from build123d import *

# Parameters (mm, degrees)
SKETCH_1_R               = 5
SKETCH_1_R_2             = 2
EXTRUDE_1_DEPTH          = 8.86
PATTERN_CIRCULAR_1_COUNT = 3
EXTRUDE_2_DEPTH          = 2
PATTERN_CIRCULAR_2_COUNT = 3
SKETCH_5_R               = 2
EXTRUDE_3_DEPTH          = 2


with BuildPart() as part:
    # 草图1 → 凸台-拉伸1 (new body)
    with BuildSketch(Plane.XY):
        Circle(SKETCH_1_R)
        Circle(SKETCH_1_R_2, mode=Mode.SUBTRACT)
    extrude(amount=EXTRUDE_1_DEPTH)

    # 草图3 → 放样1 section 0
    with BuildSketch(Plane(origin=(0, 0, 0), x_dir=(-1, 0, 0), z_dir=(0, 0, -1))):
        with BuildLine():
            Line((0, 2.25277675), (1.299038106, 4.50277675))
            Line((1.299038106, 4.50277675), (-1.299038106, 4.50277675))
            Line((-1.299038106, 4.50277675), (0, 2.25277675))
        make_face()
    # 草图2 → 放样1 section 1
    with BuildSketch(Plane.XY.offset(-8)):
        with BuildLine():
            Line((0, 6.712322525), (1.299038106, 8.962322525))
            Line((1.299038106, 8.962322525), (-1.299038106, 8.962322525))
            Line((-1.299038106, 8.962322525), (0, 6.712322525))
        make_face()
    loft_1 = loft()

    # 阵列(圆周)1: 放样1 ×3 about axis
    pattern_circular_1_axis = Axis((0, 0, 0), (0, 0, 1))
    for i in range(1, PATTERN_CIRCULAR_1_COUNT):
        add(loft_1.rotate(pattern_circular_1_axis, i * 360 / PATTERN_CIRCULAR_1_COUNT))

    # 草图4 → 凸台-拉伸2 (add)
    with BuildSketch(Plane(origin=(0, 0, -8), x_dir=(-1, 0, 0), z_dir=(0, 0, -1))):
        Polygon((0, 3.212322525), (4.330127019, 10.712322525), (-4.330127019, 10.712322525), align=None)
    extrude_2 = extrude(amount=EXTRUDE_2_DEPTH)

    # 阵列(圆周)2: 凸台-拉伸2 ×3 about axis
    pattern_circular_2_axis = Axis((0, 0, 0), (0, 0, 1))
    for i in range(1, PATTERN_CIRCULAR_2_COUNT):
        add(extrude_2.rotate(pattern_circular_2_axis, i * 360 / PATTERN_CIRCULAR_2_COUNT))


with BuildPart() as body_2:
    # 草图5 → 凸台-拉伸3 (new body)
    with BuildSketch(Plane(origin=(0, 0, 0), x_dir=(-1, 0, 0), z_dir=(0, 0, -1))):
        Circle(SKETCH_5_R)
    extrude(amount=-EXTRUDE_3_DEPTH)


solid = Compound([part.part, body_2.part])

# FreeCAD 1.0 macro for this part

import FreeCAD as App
import Part
import Sketcher
Q = App.Units.Quantity


def add_polygon(sketch, points):
    """Adds a closed chain of lines whose ends are joined by coincident constraints."""
    first, n = sketch.GeometryCount, len(points)
    for a, b in zip(points, points[1:] + points[:1]):
        sketch.addGeometry(Part.LineSegment(App.Vector(*a, 0), App.Vector(*b, 0)), False)
    for i in range(n):
        sketch.addConstraint(Sketcher.Constraint("Coincident", first + i, 2, first + (i + 1) % n, 1))

doc = App.newDocument("Part")
body = doc.addObject("PartDesign::Body", "Body")

# Sketch on XY plane
sketch1 = body.newObject("Sketcher::SketchObject", "Sketch")
sketch1.AttachmentSupport = (doc.getObject("XY_Plane"), [""])
sketch1.MapMode = "FlatFace"
sketch1.addGeometry([
    Part.Circle(App.Vector(0, 0, 0), App.Vector(0, 0, 1), 5),
    Part.Circle(App.Vector(0, 0, 0), App.Vector(0, 0, 1), 2),
], False)
sketch1.addConstraint([
    Sketcher.Constraint("Coincident", 0, 3, -1, 1),
    Sketcher.Constraint("Coincident", 1, 3, -1, 1),
    Sketcher.Constraint("Diameter", 0, 10.0),
    Sketcher.Constraint("Diameter", 1, 4.0),
])
pad1 = body.newObject("PartDesign::Pad", "Pad")
pad1.Profile = sketch1
pad1.Length = 8.86

# Sketch on XY plane
sketch2 = body.newObject("Sketcher::SketchObject", "Sketch001")
sketch2.AttachmentSupport = (doc.getObject("XY_Plane"), [""])
sketch2.MapMode = "FlatFace"
add_polygon(sketch2, [(0, 2.252777), (-1.299038, 4.502777), (1.299038, 4.502777)])  # lines 0-2
sketch2.addConstraint([
    Sketcher.Constraint("Horizontal", 1),
    Sketcher.Constraint("PointOnObject", 2, 2, -2),
    Sketcher.Constraint("Equal", 0, 2),
    Sketcher.Constraint("Angle", 0, Q("120 deg")),
    Sketcher.Constraint("DistanceY", 2, 2, 0, 2, 2.25),
    Sketcher.Constraint("DistanceY", -1, 1, 0, 2, 4.502777),
])

# Sketch on XY plane
sketch3 = body.newObject("Sketcher::SketchObject", "Sketch002")
sketch3.AttachmentSupport = (doc.getObject("XY_Plane"), [""])
sketch3.MapMode = "FlatFace"
sketch3.AttachmentOffset = App.Placement(App.Vector(0, 0, -8), App.Rotation())
add_polygon(sketch3, [(0, 6.712323), (1.299038, 8.962323), (-1.299038, 8.962323)])  # lines 0-2
sketch3.addConstraint([
    Sketcher.Constraint("Horizontal", 1),
    Sketcher.Constraint("PointOnObject", 2, 2, -2),
    Sketcher.Constraint("Equal", 0, 2),
    Sketcher.Constraint("Angle", 0, Q("60 deg")),
    Sketcher.Constraint("DistanceY", 2, 2, 0, 2, 2.25),
    Sketcher.Constraint("DistanceY", -1, 1, 0, 2, 8.962323),
])

additiveloft = body.newObject("PartDesign::AdditiveLoft", "AdditiveLoft")
additiveloft.Profile = sketch2
additiveloft.Sections = [sketch3]
doc.recompute()

polarpattern = body.newObject("PartDesign::PolarPattern", "PolarPattern")
polarpattern.Originals = [additiveloft]
polarpattern.Axis = (doc.getObject("Z_Axis"), [""])
polarpattern.Angle = 360
polarpattern.Occurrences = 3
body.Tip = polarpattern

# Sketch on XY plane
sketch4 = body.newObject("Sketcher::SketchObject", "Sketch003")
sketch4.AttachmentSupport = (doc.getObject("XY_Plane"), [""])
sketch4.MapMode = "FlatFace"
sketch4.AttachmentOffset = App.Placement(App.Vector(0, 0, -8), App.Rotation())
add_polygon(sketch4, [(0, 3.212323), (-4.330127, 10.712323), (4.330127, 10.712323)])  # lines 0-2
sketch4.addConstraint([
    Sketcher.Constraint("Horizontal", 1),
    Sketcher.Constraint("PointOnObject", 2, 2, -2),
    Sketcher.Constraint("Equal", 0, 2),
    Sketcher.Constraint("Angle", 0, Q("120 deg")),
    Sketcher.Constraint("DistanceY", 2, 2, 0, 2, 7.5),
    Sketcher.Constraint("DistanceY", -1, 1, 0, 2, 10.712323),
])
pad2 = body.newObject("PartDesign::Pad", "Pad001")
pad2.Profile = sketch4
pad2.Length = 2
pad2.Reversed = True
doc.recompute()

polarpattern2 = body.newObject("PartDesign::PolarPattern", "PolarPattern001")
polarpattern2.Originals = [pad2]
polarpattern2.Axis = (doc.getObject("Z_Axis"), [""])
polarpattern2.Angle = 360
polarpattern2.Occurrences = 3
body.Tip = polarpattern2
body2 = doc.addObject("PartDesign::Body", "Body001")

# Sketch on XY plane
sketch5 = body2.newObject("Sketcher::SketchObject", "Sketch004")
sketch5.AttachmentSupport = (doc.getObject("XY_Plane001"), [""])
sketch5.MapMode = "FlatFace"
sketch5.addGeometry(Part.Circle(App.Vector(0, 0, 0), App.Vector(0, 0, 1), 2), False)
sketch5.addConstraint([
    Sketcher.Constraint("Coincident", 0, 3, -1, 1),
    Sketcher.Constraint("Diameter", 0, 4.0),
])
pad3 = body2.newObject("PartDesign::Pad", "Pad002")
pad3.Profile = sketch5
pad3.Length = 2

doc.recompute()
